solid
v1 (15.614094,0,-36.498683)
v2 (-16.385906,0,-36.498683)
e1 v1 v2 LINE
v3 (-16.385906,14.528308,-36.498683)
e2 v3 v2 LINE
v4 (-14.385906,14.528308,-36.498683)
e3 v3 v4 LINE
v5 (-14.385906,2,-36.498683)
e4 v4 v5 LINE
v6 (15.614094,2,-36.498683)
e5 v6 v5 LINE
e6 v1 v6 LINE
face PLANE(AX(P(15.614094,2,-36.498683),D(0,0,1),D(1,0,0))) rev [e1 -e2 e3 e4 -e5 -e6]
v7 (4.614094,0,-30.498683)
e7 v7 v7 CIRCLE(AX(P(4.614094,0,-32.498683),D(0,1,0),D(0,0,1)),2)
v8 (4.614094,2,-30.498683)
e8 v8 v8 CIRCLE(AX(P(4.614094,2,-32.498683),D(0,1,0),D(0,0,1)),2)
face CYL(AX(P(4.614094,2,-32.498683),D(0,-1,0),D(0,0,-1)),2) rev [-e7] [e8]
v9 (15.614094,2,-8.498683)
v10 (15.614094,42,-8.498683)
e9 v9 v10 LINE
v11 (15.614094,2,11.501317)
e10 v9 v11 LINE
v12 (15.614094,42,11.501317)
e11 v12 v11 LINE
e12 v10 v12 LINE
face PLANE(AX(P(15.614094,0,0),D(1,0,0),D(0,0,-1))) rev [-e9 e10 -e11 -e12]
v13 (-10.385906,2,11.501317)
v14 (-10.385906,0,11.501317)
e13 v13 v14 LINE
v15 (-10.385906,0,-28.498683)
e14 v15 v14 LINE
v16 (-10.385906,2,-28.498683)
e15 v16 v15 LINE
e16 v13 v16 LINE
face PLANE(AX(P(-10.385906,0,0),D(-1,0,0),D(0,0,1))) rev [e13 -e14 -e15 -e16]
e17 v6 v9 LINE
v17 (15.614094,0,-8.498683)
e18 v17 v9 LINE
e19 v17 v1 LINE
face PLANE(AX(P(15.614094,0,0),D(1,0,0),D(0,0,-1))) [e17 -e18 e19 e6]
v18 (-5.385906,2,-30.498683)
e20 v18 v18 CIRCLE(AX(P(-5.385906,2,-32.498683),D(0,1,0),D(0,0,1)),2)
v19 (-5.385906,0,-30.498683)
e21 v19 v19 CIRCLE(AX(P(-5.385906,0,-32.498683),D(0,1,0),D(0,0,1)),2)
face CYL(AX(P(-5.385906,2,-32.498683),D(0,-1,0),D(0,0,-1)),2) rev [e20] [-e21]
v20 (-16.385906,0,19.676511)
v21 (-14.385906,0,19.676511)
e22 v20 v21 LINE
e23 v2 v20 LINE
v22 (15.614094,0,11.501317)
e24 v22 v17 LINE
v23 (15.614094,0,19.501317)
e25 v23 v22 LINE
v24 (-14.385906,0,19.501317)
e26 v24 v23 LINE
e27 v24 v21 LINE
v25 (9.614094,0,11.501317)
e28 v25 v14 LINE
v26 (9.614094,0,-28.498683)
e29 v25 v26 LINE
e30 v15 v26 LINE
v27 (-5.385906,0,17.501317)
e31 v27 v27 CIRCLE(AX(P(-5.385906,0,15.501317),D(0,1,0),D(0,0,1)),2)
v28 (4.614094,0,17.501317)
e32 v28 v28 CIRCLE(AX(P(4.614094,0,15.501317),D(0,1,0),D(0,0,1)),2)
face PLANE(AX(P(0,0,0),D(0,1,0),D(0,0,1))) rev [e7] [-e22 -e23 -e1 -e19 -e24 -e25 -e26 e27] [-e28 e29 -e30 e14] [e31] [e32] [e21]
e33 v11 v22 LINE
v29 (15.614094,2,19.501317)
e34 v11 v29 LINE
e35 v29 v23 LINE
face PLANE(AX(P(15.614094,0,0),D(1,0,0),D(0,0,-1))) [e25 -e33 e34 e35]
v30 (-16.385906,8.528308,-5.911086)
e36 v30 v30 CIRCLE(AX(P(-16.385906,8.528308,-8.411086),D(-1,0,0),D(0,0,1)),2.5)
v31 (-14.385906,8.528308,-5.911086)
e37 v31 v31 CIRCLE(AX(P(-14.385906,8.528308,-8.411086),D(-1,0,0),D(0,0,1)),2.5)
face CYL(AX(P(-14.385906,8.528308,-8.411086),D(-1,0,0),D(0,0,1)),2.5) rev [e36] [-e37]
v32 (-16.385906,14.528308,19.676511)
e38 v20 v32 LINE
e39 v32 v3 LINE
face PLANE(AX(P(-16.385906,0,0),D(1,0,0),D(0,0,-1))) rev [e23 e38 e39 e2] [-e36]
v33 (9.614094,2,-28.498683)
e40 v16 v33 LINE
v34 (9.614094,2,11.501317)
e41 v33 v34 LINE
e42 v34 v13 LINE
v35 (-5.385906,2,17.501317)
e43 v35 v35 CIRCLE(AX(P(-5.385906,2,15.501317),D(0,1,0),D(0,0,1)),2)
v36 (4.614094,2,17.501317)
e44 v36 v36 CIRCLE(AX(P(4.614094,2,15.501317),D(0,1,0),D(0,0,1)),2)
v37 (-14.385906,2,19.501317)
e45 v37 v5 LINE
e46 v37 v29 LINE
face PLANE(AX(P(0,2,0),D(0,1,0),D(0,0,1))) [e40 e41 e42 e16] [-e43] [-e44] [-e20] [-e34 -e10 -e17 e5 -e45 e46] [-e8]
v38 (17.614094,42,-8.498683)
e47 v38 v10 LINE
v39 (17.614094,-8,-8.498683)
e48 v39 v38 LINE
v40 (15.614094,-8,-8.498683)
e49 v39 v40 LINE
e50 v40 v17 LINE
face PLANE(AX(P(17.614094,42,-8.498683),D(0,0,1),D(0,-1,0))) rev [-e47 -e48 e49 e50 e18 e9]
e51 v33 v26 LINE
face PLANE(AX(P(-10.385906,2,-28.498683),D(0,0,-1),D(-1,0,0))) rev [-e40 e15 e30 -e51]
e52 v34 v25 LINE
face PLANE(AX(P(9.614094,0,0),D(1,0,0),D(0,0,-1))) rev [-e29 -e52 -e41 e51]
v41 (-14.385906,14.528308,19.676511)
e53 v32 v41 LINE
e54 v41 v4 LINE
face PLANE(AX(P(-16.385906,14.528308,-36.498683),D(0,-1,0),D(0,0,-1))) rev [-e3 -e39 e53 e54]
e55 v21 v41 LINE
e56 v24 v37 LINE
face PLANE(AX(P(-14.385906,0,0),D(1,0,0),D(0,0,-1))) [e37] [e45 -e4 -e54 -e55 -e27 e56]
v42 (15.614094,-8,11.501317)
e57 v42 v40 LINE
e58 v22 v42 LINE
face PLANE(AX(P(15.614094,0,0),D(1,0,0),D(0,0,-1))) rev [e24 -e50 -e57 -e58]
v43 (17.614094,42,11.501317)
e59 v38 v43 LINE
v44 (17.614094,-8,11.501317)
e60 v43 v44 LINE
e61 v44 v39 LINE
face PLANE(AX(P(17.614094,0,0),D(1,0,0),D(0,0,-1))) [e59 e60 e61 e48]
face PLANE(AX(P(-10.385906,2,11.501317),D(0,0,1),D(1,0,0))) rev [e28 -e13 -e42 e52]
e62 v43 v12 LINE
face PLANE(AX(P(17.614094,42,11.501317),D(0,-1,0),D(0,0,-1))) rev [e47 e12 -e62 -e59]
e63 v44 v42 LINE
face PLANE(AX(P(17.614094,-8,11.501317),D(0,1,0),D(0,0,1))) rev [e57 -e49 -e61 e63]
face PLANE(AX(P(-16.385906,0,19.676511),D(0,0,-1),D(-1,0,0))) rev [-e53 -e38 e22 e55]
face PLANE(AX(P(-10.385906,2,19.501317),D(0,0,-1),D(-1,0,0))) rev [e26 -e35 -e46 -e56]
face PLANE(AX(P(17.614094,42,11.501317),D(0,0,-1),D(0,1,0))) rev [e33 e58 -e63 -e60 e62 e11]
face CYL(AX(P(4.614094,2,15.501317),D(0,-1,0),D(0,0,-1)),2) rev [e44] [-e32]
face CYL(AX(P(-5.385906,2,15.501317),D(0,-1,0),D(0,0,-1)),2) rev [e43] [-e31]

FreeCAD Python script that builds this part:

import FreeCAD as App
import Part
import Sketcher
from FreeCAD import Vector
Q = App.Units.Quantity

doc = App.newDocument("Part")
params = doc.addObject("Spreadsheet::Sheet", "Params")
for row, (alias, value) in enumerate([
    ("sketch1_diameter", "4 mm"),
    ("sketch1_width", "20 mm"),
    ("sketch1_height", "8 mm"),
    ("pad1_length", "2 mm"),
    ("sketch2_diameter", "4 mm"),
    ("sketch2_width", "20 mm"),
    ("sketch2_height", "8 mm"),
    ("pad2_length", "2 mm"),
    ("sketch3_width", "2 mm"),
    ("sketch3_height", "56 mm"),
    ("pad3_length", "6 mm"),
    ("sketch4_width", "2 mm"),
    ("sketch4_height", "56 mm"),
    ("pad4_length", "4 mm"),
    ("pad5_length", "2 mm"),
    ("sketch6_diameter", "5 mm"),
    ("pocket1_length", "2 mm"),
    ("sketch7_width", "50 mm"),
    ("sketch7_height", "20 mm"),
    ("pad6_length", "2 mm"),
], start=1):
    params.set(f"A{row}", alias)
    params.set(f"B{row}", "=" + value)
    params.setAlias(f"B{row}", alias)

body = doc.addObject("PartDesign::Body", "Body")

# Sketch on XZ plane
sketch1 = body.newObject("Sketcher::SketchObject", "Sketch")
sketch1.AttachmentSupport = (doc.getObject("XZ_Plane"), [""])
sketch1.MapMode = "FlatFace"
sketch1.addGeometry([
    Part.LineSegment(Vector(-10.385906, 11.501317, 0), Vector(-10.385906, 19.501317, 0)),  # 0
    Part.LineSegment(Vector(-10.385906, 19.501317, 0), Vector(9.614094, 19.501317, 0)),  # 1
    Part.LineSegment(Vector(9.614094, 19.501317, 0), Vector(9.614094, 11.501317, 0)),  # 2
    Part.LineSegment(Vector(9.614094, 11.501317, 0), Vector(-10.385906, 11.501317, 0)),  # 3
    Part.Circle(Vector(-5.385906, 15.501317, 0), Vector(0, 0, 1), 2),  # 4
    Part.Circle(Vector(4.614094, 15.501317, 0), Vector(0, 0, 1), 2),  # 5
], False)
sketch1.addConstraint([
    Sketcher.Constraint("Coincident", 0, 2, 1, 1),
    Sketcher.Constraint("Coincident", 1, 2, 2, 1),
    Sketcher.Constraint("Coincident", 2, 2, 3, 1),
    Sketcher.Constraint("Coincident", 3, 2, 0, 1),
    Sketcher.Constraint("Vertical", 0),
    Sketcher.Constraint("Horizontal", 1),
    Sketcher.Constraint("Vertical", 2),
    Sketcher.Constraint("Horizontal", 3),
    Sketcher.Constraint("Equal", 4, 5),
    Sketcher.Constraint("Horizontal", 4, 3, 5, 3),
    Sketcher.Constraint("Diameter", 4, Q("4 mm")),
    Sketcher.Constraint("DistanceX", 1, 1, 1, 2, Q("20 mm")),
    Sketcher.Constraint("DistanceY", 0, 1, 0, 2, Q("8 mm")),
    Sketcher.Constraint("DistanceX", 4, 3, 5, 3, Q("10 mm")),
    Sketcher.Constraint("DistanceX", 0, 2, 4, 3, Q("5 mm")),
    Sketcher.Constraint("DistanceY", 4, 3, 0, 2, Q("4 mm")),
    Sketcher.Constraint("DistanceX", 4, 3, -1, 1, Q("5.385906 mm")),
    Sketcher.Constraint("DistanceY", -1, 1, 4, 3, Q("15.501317 mm")),
])
sketch1.setExpression("Constraints[10]", "Params.sketch1_diameter")
sketch1.setExpression("Constraints[11]", "Params.sketch1_width")
sketch1.setExpression("Constraints[12]", "Params.sketch1_height")
pad1 = body.newObject("PartDesign::Pad", "Pad")
pad1.Profile = sketch1
pad1.setExpression("Length", "Params.pad1_length")
pad1.Reversed = True
body2 = doc.addObject("PartDesign::Body", "Body001")

# Sketch on XZ plane
sketch2 = body2.newObject("Sketcher::SketchObject", "Sketch001")
sketch2.AttachmentSupport = (doc.getObject("XZ_Plane001"), [""])
sketch2.MapMode = "FlatFace"
sketch2.addGeometry([
    Part.LineSegment(Vector(-10.385906, -36.498683, 0), Vector(-10.385906, -28.498683, 0)),  # 0
    Part.LineSegment(Vector(-10.385906, -28.498683, 0), Vector(9.614094, -28.498683, 0)),  # 1
    Part.LineSegment(Vector(9.614094, -28.498683, 0), Vector(9.614094, -36.498683, 0)),  # 2
    Part.LineSegment(Vector(9.614094, -36.498683, 0), Vector(-10.385906, -36.498683, 0)),  # 3
    Part.Circle(Vector(-5.385906, -32.498683, 0), Vector(0, 0, 1), 2),  # 4
    Part.Circle(Vector(4.614094, -32.498683, 0), Vector(0, 0, 1), 2),  # 5
], False)
sketch2.addConstraint([
    Sketcher.Constraint("Coincident", 0, 2, 1, 1),
    Sketcher.Constraint("Coincident", 1, 2, 2, 1),
    Sketcher.Constraint("Coincident", 2, 2, 3, 1),
    Sketcher.Constraint("Coincident", 3, 2, 0, 1),
    Sketcher.Constraint("Vertical", 0),
    Sketcher.Constraint("Horizontal", 1),
    Sketcher.Constraint("Vertical", 2),
    Sketcher.Constraint("Horizontal", 3),
    Sketcher.Constraint("Equal", 4, 5),
    Sketcher.Constraint("Horizontal", 4, 3, 5, 3),
    Sketcher.Constraint("Diameter", 4, Q("4 mm")),
    Sketcher.Constraint("DistanceX", 1, 1, 1, 2, Q("20 mm")),
    Sketcher.Constraint("DistanceY", 0, 1, 0, 2, Q("8 mm")),
    Sketcher.Constraint("DistanceX", 4, 3, 5, 3, Q("10 mm")),
    Sketcher.Constraint("DistanceX", 0, 2, 4, 3, Q("5 mm")),
    Sketcher.Constraint("DistanceY", 4, 3, 0, 2, Q("4 mm")),
    Sketcher.Constraint("DistanceX", 4, 3, -1, 1, Q("5.385906 mm")),
    Sketcher.Constraint("DistanceY", 4, 3, -1, 1, Q("32.498683 mm")),
])
sketch2.setExpression("Constraints[10]", "Params.sketch2_diameter")
sketch2.setExpression("Constraints[11]", "Params.sketch2_width")
sketch2.setExpression("Constraints[12]", "Params.sketch2_height")
pad2 = body2.newObject("PartDesign::Pad", "Pad001")
pad2.Profile = sketch2
pad2.setExpression("Length", "Params.pad2_length")
pad2.Reversed = True
body.AllowCompound = True
doc.recompute()

boolean = body.newObject("PartDesign::Boolean", "Boolean")
boolean.Type = "Fuse"
boolean.addObjects([body2])

# Sketch on YZ plane
sketch3 = body.newObject("Sketcher::SketchObject", "Sketch002")
sketch3.AttachmentSupport = (doc.getObject("YZ_Plane"), [""])
sketch3.MapMode = "FlatFace"
sketch3.AttachmentOffset = App.Placement(Vector(0, 0, 9.614094), App.Rotation())
sketch3.addGeometry([
    Part.LineSegment(Vector(2, 19.501317, 0), Vector(0, 19.501317, 0)),
    Part.LineSegment(Vector(0, 19.501317, 0), Vector(0, -36.498683, 0)),
    Part.LineSegment(Vector(0, -36.498683, 0), Vector(2, -36.498683, 0)),
    Part.LineSegment(Vector(2, -36.498683, 0), Vector(2, 19.501317, 0)),
], False)
sketch3.addConstraint([
    Sketcher.Constraint("Coincident", 0, 2, 1, 1),
    Sketcher.Constraint("Coincident", 1, 2, 2, 1),
    Sketcher.Constraint("Coincident", 2, 2, 3, 1),
    Sketcher.Constraint("Coincident", 3, 2, 0, 1),
    Sketcher.Constraint("Horizontal", 0),
    Sketcher.Constraint("Vertical", 1),
    Sketcher.Constraint("Horizontal", 2),
    Sketcher.Constraint("Vertical", 3),
    Sketcher.Constraint("PointOnObject", 0, 2, -2),
    Sketcher.Constraint("DistanceX", 0, 2, 0, 1, Q("2 mm")),
    Sketcher.Constraint("DistanceY", 1, 2, 1, 1, Q("56 mm")),
    Sketcher.Constraint("DistanceY", -1, 1, 0, 2, Q("19.501317 mm")),
])
sketch3.setExpression("Constraints[9]", "Params.sketch3_width")
sketch3.setExpression("Constraints[10]", "Params.sketch3_height")
pad3 = body.newObject("PartDesign::Pad", "Pad002")
pad3.Profile = sketch3
pad3.setExpression("Length", "Params.pad3_length")

# Sketch on YZ plane
sketch4 = body.newObject("Sketcher::SketchObject", "Sketch003")
sketch4.AttachmentSupport = (doc.getObject("YZ_Plane"), [""])
sketch4.MapMode = "FlatFace"
sketch4.AttachmentOffset = App.Placement(Vector(0, 0, -10.385906), App.Rotation())
sketch4.addGeometry([
    Part.LineSegment(Vector(2, -36.498683, 0), Vector(0, -36.498683, 0)),
    Part.LineSegment(Vector(0, -36.498683, 0), Vector(0, 19.501317, 0)),
    Part.LineSegment(Vector(0, 19.501317, 0), Vector(2, 19.501317, 0)),
    Part.LineSegment(Vector(2, 19.501317, 0), Vector(2, -36.498683, 0)),
], False)
sketch4.addConstraint([
    Sketcher.Constraint("Coincident", 0, 2, 1, 1),
    Sketcher.Constraint("Coincident", 1, 2, 2, 1),
    Sketcher.Constraint("Coincident", 2, 2, 3, 1),
    Sketcher.Constraint("Coincident", 3, 2, 0, 1),
    Sketcher.Constraint("Horizontal", 0),
    Sketcher.Constraint("Vertical", 1),
    Sketcher.Constraint("Horizontal", 2),
    Sketcher.Constraint("Vertical", 3),
    Sketcher.Constraint("PointOnObject", 0, 2, -2),
    Sketcher.Constraint("DistanceX", 0, 2, 0, 1, Q("2 mm")),
    Sketcher.Constraint("DistanceY", 1, 1, 1, 2, Q("56 mm")),
    Sketcher.Constraint("DistanceY", 0, 2, -1, 1, Q("36.498683 mm")),
])
sketch4.setExpression("Constraints[9]", "Params.sketch4_width")
sketch4.setExpression("Constraints[10]", "Params.sketch4_height")
pad4 = body.newObject("PartDesign::Pad", "Pad003")
pad4.Profile = sketch4
pad4.setExpression("Length", "Params.pad4_length")
pad4.Reversed = True

# Sketch on YZ plane
sketch5 = body.newObject("Sketcher::SketchObject", "Sketch004")
sketch5.AttachmentSupport = (doc.getObject("YZ_Plane"), [""])
sketch5.MapMode = "FlatFace"
sketch5.AttachmentOffset = App.Placement(Vector(0, 0, -14.385906), App.Rotation())
sketch5.addGeometry([
    Part.LineSegment(Vector(14.528308, -36.498683, 0), Vector(0, -36.498683, 0)),
    Part.LineSegment(Vector(0, -36.498683, 0), Vector(0, 19.676511, 0)),
    Part.LineSegment(Vector(0, 19.676511, 0), Vector(14.528308, 19.676511, 0)),
    Part.LineSegment(Vector(14.528308, 19.676511, 0), Vector(14.528308, -36.498683, 0)),
], False)
sketch5.addConstraint([
    Sketcher.Constraint("Coincident", 0, 2, 1, 1),
    Sketcher.Constraint("Coincident", 1, 2, 2, 1),
    Sketcher.Constraint("Coincident", 2, 2, 3, 1),
    Sketcher.Constraint("Coincident", 3, 2, 0, 1),
    Sketcher.Constraint("Horizontal", 0),
    Sketcher.Constraint("Vertical", 1),
    Sketcher.Constraint("Horizontal", 2),
    Sketcher.Constraint("Vertical", 3),
    Sketcher.Constraint("PointOnObject", 0, 2, -2),
    Sketcher.Constraint("DistanceX", 0, 2, 0, 1, Q("14.528308 mm")),
    Sketcher.Constraint("DistanceY", 1, 1, 1, 2, Q("56.175194 mm")),
    Sketcher.Constraint("DistanceY", -1, 1, 1, 2, Q("19.676511 mm")),
])
pad5 = body.newObject("PartDesign::Pad", "Pad004")
pad5.Profile = sketch5
pad5.setExpression("Length", "Params.pad5_length")
pad5.Reversed = True

# Sketch on YZ plane
sketch6 = body.newObject("Sketcher::SketchObject", "Sketch005")
sketch6.AttachmentSupport = (doc.getObject("YZ_Plane"), [""])
sketch6.MapMode = "FlatFace"
sketch6.AttachmentOffset = App.Placement(Vector(0, 0, -16.385906), App.Rotation())
sketch6.addGeometry(Part.Circle(Vector(8.528308, -8.411086, 0), Vector(0, 0, 1), 2.5), False)
sketch6.addConstraint([
    Sketcher.Constraint("Diameter", 0, Q("5 mm")),
    Sketcher.Constraint("DistanceX", -1, 1, 0, 3, Q("8.528308 mm")),
    Sketcher.Constraint("DistanceY", 0, 3, -1, 1, Q("8.411086 mm")),
])
sketch6.setExpression("Constraints[0]", "Params.sketch6_diameter")
pocket1 = body.newObject("PartDesign::Pocket", "Pocket")
pocket1.Profile = sketch6
pocket1.setExpression("Length", "Params.pocket1_length")
pocket1.Reversed = True

# Sketch on YZ plane
sketch7 = body.newObject("Sketcher::SketchObject", "Sketch006")
sketch7.AttachmentSupport = (doc.getObject("YZ_Plane"), [""])
sketch7.MapMode = "FlatFace"
sketch7.AttachmentOffset = App.Placement(Vector(0, 0, 15.614094), App.Rotation())
sketch7.addGeometry([
    Part.LineSegment(Vector(42, 11.501317, 0), Vector(-8, 11.501317, 0)),
    Part.LineSegment(Vector(-8, 11.501317, 0), Vector(-8, -8.498683, 0)),
    Part.LineSegment(Vector(-8, -8.498683, 0), Vector(42, -8.498683, 0)),
    Part.LineSegment(Vector(42, -8.498683, 0), Vector(42, 11.501317, 0)),
], False)
sketch7.addConstraint([
    Sketcher.Constraint("Coincident", 0, 2, 1, 1),
    Sketcher.Constraint("Coincident", 1, 2, 2, 1),
    Sketcher.Constraint("Coincident", 2, 2, 3, 1),
    Sketcher.Constraint("Coincident", 3, 2, 0, 1),
    Sketcher.Constraint("Horizontal", 0),
    Sketcher.Constraint("Vertical", 1),
    Sketcher.Constraint("Horizontal", 2),
    Sketcher.Constraint("Vertical", 3),
    Sketcher.Constraint("DistanceX", 0, 2, 0, 1, Q("50 mm")),
    Sketcher.Constraint("DistanceY", 1, 2, 1, 1, Q("20 mm")),
    Sketcher.Constraint("DistanceX", 0, 2, -1, 1, Q("8 mm")),
    Sketcher.Constraint("DistanceY", -1, 1, 0, 2, Q("11.501317 mm")),
])
sketch7.setExpression("Constraints[8]", "Params.sketch7_width")
sketch7.setExpression("Constraints[9]", "Params.sketch7_height")
pad6 = body.newObject("PartDesign::Pad", "Pad005")
pad6.Profile = sketch7
pad6.setExpression("Length", "Params.pad6_length")

doc.recompute()
